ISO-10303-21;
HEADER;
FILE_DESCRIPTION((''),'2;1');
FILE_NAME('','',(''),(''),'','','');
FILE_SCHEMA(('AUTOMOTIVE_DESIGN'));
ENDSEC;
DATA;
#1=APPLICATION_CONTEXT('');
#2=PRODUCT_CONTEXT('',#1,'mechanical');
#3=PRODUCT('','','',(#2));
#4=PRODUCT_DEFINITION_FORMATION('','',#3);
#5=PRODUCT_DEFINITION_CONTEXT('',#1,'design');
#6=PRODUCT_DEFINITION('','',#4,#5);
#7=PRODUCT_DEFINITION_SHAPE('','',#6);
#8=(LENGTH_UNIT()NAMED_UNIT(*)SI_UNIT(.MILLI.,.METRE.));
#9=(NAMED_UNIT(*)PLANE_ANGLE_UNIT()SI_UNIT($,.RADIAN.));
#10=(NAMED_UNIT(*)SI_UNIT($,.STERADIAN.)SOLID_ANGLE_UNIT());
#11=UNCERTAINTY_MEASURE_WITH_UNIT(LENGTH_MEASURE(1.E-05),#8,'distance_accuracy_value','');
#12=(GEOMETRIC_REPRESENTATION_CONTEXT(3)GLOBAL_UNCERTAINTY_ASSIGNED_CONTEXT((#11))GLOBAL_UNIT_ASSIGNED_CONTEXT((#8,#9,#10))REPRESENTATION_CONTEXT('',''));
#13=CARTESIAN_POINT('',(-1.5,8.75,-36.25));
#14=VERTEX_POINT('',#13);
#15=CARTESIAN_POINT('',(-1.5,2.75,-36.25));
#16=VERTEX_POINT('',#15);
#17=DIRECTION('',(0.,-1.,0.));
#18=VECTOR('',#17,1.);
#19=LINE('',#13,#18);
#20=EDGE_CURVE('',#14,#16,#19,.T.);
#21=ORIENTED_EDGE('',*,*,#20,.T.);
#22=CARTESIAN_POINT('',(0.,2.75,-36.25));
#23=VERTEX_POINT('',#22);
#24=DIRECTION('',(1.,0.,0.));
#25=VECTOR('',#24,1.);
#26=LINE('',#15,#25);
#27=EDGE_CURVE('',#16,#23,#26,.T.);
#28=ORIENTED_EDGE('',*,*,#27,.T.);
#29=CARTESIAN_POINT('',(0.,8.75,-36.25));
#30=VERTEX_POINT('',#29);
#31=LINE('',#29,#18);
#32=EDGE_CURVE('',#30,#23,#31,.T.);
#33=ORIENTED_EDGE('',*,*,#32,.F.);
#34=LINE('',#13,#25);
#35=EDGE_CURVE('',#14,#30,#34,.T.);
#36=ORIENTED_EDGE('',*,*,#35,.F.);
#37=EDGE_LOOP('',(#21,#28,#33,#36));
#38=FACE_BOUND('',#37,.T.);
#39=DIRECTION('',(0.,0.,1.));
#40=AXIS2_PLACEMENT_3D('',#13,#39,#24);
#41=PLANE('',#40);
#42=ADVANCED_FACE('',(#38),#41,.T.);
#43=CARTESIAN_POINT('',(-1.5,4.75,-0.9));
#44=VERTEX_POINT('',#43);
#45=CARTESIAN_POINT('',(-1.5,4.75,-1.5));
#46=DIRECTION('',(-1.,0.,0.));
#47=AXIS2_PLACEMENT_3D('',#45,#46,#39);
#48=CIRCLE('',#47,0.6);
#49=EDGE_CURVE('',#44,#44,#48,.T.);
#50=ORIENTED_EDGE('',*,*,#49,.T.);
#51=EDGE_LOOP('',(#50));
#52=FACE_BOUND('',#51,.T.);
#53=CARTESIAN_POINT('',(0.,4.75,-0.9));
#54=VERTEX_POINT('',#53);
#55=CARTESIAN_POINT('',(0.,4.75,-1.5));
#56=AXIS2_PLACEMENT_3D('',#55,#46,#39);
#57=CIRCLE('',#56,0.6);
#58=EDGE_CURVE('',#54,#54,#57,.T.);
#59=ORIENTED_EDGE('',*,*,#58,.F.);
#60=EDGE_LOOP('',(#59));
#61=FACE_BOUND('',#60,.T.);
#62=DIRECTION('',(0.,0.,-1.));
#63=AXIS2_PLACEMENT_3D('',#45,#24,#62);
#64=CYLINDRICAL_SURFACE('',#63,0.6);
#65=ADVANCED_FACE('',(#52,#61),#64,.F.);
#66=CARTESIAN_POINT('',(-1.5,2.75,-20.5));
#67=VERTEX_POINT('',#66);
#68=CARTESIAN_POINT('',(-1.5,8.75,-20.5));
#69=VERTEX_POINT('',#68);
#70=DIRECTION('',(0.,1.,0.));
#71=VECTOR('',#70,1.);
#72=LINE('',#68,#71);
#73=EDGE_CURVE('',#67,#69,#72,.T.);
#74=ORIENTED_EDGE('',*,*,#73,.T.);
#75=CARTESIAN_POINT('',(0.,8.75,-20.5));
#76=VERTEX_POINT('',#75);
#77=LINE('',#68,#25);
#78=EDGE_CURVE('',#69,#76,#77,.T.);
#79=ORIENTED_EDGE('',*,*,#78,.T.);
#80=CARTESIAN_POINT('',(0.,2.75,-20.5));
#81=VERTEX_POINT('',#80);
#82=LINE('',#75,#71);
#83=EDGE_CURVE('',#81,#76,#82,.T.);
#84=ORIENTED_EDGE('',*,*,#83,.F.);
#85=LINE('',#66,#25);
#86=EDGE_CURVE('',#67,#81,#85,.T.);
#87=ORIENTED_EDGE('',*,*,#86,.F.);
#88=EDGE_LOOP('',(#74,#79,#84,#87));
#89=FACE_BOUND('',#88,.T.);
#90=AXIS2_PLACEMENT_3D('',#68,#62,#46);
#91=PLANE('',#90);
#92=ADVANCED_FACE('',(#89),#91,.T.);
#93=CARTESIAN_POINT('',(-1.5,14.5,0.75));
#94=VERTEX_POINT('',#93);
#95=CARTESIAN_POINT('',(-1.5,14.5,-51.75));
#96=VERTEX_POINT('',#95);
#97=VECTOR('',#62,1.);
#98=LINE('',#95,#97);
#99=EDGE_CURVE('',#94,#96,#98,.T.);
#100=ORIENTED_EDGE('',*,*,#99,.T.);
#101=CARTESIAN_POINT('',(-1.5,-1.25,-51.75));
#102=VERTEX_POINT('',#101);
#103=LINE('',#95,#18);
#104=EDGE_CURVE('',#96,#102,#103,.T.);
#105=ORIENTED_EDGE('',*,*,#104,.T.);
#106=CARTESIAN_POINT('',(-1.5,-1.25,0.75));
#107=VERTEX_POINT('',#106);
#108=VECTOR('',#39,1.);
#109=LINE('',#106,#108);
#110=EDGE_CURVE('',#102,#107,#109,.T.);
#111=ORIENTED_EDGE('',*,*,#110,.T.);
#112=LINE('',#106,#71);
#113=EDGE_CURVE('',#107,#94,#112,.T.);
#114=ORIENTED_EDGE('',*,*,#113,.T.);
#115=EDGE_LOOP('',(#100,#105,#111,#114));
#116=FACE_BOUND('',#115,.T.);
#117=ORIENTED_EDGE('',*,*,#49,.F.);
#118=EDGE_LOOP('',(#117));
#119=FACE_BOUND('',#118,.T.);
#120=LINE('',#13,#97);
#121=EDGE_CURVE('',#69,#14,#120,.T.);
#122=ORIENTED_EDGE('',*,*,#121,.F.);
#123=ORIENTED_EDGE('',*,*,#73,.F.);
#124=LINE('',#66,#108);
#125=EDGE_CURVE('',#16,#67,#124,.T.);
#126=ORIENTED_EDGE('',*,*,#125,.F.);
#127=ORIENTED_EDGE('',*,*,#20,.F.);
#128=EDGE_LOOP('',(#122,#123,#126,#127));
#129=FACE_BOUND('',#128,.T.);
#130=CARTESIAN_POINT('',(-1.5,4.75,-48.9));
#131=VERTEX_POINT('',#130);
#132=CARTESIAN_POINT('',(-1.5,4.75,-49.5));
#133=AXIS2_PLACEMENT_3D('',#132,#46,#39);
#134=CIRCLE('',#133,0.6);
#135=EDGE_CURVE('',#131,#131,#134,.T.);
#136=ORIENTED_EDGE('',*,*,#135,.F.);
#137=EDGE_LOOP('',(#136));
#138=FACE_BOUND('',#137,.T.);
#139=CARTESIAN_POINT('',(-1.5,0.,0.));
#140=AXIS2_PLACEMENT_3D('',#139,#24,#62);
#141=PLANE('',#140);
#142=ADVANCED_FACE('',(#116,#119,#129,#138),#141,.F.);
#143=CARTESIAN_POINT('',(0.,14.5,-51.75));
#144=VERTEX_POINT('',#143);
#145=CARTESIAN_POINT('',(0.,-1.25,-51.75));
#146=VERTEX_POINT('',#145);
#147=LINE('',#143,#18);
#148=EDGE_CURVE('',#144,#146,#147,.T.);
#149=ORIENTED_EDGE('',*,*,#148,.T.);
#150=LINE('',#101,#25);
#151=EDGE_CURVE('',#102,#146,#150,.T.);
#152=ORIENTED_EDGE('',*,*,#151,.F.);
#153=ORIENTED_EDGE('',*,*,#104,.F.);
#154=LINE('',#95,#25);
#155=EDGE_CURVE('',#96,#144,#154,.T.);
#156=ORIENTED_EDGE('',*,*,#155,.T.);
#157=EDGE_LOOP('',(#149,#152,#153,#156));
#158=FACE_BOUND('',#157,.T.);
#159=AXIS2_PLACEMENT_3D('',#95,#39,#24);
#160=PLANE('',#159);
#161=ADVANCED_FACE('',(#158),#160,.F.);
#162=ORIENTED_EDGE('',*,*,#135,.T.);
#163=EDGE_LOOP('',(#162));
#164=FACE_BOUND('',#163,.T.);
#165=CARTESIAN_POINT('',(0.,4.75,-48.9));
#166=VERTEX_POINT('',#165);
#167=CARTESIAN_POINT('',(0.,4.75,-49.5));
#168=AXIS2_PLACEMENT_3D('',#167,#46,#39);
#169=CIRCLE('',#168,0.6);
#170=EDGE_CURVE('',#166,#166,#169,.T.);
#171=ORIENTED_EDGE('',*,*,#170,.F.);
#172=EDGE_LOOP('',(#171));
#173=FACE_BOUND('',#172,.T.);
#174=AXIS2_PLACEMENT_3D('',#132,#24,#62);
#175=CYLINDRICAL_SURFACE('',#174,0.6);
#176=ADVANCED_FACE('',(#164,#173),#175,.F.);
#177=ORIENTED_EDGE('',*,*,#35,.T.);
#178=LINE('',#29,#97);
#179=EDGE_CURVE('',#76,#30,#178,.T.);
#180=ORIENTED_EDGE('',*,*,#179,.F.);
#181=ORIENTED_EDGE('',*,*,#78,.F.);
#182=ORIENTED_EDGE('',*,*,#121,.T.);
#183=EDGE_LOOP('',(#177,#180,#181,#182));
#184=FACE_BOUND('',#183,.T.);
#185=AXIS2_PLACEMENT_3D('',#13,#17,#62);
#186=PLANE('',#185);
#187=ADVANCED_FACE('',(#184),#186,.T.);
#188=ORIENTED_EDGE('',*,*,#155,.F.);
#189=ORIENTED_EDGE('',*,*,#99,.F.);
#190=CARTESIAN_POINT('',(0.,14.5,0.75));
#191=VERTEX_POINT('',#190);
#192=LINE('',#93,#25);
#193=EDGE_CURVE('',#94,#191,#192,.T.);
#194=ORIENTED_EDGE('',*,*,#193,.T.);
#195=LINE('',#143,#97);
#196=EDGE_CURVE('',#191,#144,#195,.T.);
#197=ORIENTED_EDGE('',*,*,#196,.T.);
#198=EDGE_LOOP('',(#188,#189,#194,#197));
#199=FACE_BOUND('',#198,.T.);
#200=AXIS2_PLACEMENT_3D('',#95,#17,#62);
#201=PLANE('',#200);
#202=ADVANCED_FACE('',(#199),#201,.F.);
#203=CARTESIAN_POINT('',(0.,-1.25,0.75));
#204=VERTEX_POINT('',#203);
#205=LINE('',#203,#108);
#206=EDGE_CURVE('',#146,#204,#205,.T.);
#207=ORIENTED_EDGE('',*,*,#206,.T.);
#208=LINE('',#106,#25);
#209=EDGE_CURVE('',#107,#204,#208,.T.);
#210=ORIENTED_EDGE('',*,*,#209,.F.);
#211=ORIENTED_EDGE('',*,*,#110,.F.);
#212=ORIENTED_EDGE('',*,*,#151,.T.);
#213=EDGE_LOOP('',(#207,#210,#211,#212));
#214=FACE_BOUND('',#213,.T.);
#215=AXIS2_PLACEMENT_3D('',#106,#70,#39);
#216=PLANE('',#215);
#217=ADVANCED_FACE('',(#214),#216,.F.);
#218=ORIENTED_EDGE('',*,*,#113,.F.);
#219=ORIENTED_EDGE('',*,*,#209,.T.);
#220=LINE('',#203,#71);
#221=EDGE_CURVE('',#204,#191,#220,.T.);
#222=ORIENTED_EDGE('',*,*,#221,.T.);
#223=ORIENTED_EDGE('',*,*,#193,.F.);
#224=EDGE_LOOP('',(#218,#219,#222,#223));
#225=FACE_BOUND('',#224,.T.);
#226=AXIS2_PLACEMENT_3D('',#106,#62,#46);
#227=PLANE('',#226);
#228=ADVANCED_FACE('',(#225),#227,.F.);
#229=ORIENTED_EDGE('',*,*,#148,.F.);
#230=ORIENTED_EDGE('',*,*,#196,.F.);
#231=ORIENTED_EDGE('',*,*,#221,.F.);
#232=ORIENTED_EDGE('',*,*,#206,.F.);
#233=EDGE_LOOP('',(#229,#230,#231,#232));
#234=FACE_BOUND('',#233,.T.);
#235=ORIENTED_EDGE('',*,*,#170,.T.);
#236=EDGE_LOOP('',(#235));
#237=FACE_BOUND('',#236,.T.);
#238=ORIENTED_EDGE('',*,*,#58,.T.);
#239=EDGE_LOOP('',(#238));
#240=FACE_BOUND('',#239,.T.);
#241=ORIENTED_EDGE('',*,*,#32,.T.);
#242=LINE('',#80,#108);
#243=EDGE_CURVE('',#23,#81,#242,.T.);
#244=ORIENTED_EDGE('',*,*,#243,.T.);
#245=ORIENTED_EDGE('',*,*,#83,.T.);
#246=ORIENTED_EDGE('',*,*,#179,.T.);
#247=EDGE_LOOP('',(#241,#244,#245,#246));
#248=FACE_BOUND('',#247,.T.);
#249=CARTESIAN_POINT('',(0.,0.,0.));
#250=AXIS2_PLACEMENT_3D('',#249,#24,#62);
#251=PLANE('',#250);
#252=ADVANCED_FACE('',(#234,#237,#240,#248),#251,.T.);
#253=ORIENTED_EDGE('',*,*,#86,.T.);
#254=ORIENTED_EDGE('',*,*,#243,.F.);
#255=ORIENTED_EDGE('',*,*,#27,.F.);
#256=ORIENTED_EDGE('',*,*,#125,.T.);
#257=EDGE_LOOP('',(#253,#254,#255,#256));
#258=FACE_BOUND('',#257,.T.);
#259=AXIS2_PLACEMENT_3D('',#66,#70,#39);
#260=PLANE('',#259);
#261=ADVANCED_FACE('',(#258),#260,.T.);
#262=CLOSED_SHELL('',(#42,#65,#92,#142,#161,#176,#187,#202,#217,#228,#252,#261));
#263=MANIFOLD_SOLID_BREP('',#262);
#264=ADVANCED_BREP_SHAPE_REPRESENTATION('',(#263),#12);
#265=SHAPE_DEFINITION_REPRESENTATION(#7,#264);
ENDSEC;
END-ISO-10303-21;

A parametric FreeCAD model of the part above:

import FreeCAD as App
import Part
import Sketcher

V = App.Vector
Q = App.Units.Quantity

doc = App.newDocument("Part")
body = doc.addObject("PartDesign::Body", "Body")

# Sketch on YZ plane
sketch1 = body.newObject("Sketcher::SketchObject", "Sketch")
sketch1.AttachmentSupport = (doc.getObject("YZ_Plane"), [""])
sketch1.MapMode = "FlatFace"
sketch1.addGeometry([
    Part.LineSegment(V(14.5, -51.8, 0), V(-1.2, -51.8, 0)),  # 0
    Part.LineSegment(V(-1.2, -51.8, 0), V(-1.2, 0.8, 0)),  # 1
    Part.LineSegment(V(-1.2, 0.8, 0), V(14.5, 0.8, 0)),  # 2
    Part.LineSegment(V(14.5, 0.8, 0), V(14.5, -51.8, 0)),  # 3
    Part.Circle(V(4.8, -49.5, 0), V(0, 0, 1), 0.6),  # 4
    Part.Circle(V(4.8, -1.5, 0), V(0, 0, 1), 0.6),  # 5
    Part.LineSegment(V(2.8, -20.5, 0), V(2.8, -36.2, 0)),  # 6
    Part.LineSegment(V(2.8, -36.2, 0), V(8.8, -36.2, 0)),  # 7
    Part.LineSegment(V(8.8, -36.2, 0), V(8.8, -20.5, 0)),  # 8
    Part.LineSegment(V(8.8, -20.5, 0), V(2.8, -20.5, 0)),  # 9
], False)
sketch1.addConstraint([
    Sketcher.Constraint("Coincident", 0, 2, 1, 1),
    Sketcher.Constraint("Coincident", 1, 2, 2, 1),
    Sketcher.Constraint("Coincident", 2, 2, 3, 1),
    Sketcher.Constraint("Coincident", 3, 2, 0, 1),
    Sketcher.Constraint("Coincident", 6, 2, 7, 1),
    Sketcher.Constraint("Coincident", 7, 2, 8, 1),
    Sketcher.Constraint("Coincident", 8, 2, 9, 1),
    Sketcher.Constraint("Coincident", 9, 2, 6, 1),
    Sketcher.Constraint("Horizontal", 0),
    Sketcher.Constraint("Vertical", 1),
    Sketcher.Constraint("Horizontal", 2),
    Sketcher.Constraint("Vertical", 3),
    Sketcher.Constraint("Vertical", 6),
    Sketcher.Constraint("Horizontal", 7),
    Sketcher.Constraint("Vertical", 8),
    Sketcher.Constraint("Horizontal", 9),
    Sketcher.Constraint("Equal", 4, 5),
    Sketcher.Constraint("Vertical", 4, 3, 5, 3),
    Sketcher.Constraint("Equal", 2, 6),
    Sketcher.Constraint("Diameter", 4, Q("1.2 mm")),
    Sketcher.Constraint("DistanceX", 7, 1, 7, 2, Q("6 mm")),
    Sketcher.Constraint("DistanceY", 1, 1, 1, 2, Q("52.5 mm")),
    Sketcher.Constraint("DistanceY", 4, 3, 5, 3, Q("48 mm")),
    Sketcher.Constraint("DistanceX", 0, 2, 4, 3, Q("6 mm")),
    Sketcher.Constraint("DistanceX", 6, 2, 4, 3, Q("2 mm")),
    Sketcher.Constraint("DistanceY", 6, 2, 1, 2, Q("37 mm")),
    Sketcher.Constraint("DistanceY", 8, 2, 5, 3, Q("19 mm")),
    Sketcher.Constraint("DistanceX", 0, 2, 0, 1, Q("15.75 mm")),
    Sketcher.Constraint("DistanceY", 4, 3, -1, 1, Q("49.5 mm")),
    Sketcher.Constraint("DistanceX", -1, 1, 2, 2, Q("14.5 mm")),
])
pad1 = body.newObject("PartDesign::Pad", "Pad")
pad1.Profile = sketch1
pad1.Length = 1.5
pad1.Reversed = True

doc.recompute()
